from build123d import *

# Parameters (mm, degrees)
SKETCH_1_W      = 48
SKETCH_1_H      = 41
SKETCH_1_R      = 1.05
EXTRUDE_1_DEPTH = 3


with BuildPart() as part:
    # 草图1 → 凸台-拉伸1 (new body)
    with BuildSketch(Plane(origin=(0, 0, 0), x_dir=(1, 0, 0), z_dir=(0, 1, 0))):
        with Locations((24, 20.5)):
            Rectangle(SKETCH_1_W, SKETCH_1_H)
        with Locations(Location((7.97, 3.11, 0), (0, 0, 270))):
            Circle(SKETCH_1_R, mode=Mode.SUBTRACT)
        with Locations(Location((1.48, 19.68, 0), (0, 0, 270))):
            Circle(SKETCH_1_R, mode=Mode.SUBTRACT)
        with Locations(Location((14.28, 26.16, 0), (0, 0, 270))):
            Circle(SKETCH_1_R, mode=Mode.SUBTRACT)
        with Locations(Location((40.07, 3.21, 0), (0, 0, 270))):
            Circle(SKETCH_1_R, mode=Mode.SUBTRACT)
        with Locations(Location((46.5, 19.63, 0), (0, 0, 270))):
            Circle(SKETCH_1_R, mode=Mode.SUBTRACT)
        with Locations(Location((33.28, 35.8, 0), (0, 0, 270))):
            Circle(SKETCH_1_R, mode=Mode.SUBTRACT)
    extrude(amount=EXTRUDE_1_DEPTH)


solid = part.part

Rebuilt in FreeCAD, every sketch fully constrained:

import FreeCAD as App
import Part
import Sketcher

V = App.Vector
Q = App.Units.Quantity

doc = App.newDocument("Part")
body = doc.addObject("PartDesign::Body", "Body")

# Sketch on XZ plane
sketch1 = body.newObject("Sketcher::SketchObject", "Sketch")
sketch1.AttachmentSupport = (doc.getObject("XZ_Plane"), [""])
sketch1.MapMode = "FlatFace"
sketch1.addGeometry([
    Part.LineSegment(V(0, -41, 0), V(0, 0, 0)),  # 0
    Part.LineSegment(V(0, 0, 0), V(48, 0, 0)),  # 1
    Part.LineSegment(V(48, 0, 0), V(48, -41, 0)),  # 2
    Part.LineSegment(V(48, -41, 0), V(0, -41, 0)),  # 3
    Part.Circle(V(7.97, -3.11, 0), V(0, 0, 1), 1.05),  # 4
    Part.Circle(V(40.07, -3.21, 0), V(0, 0, 1), 1.05),  # 5
    Part.Circle(V(1.48, -19.68, 0), V(0, 0, 1), 1.05),  # 6
    Part.Circle(V(14.28, -26.16, 0), V(0, 0, 1), 1.05),  # 7
    Part.Circle(V(46.5, -19.63, 0), V(0, 0, 1), 1.05),  # 8
    Part.Circle(V(33.28, -35.8, 0), V(0, 0, 1), 1.05),  # 9
], False)
sketch1.addConstraint([
    Sketcher.Constraint("Coincident", 0, 2, 1, 1),
    Sketcher.Constraint("Coincident", 1, 2, 2, 1),
    Sketcher.Constraint("Coincident", 2, 2, 3, 1),
    Sketcher.Constraint("Coincident", 3, 2, 0, 1),
    Sketcher.Constraint("Vertical", 0),
    Sketcher.Constraint("Horizontal", 1),
    Sketcher.Constraint("Vertical", 2),
    Sketcher.Constraint("Horizontal", 3),
    Sketcher.Constraint("Coincident", 0, 2, -1, 1),
    Sketcher.Constraint("Equal", 4, 5),
    Sketcher.Constraint("Equal", 5, 6),
    Sketcher.Constraint("Equal", 6, 7),
    Sketcher.Constraint("Equal", 7, 8),
    Sketcher.Constraint("Equal", 8, 9),
    Sketcher.Constraint("Diameter", 4, Q("2.1 mm")),
    Sketcher.Constraint("DistanceX", 1, 1, 1, 2, Q("48 mm")),
    Sketcher.Constraint("DistanceY", 0, 1, 0, 2, Q("41 mm")),
    Sketcher.Constraint("DistanceX", 7, 3, 9, 3, Q("19 mm")),
    Sketcher.Constraint("DistanceX", -1, 1, 8, 3, Q("46.5 mm")),
    Sketcher.Constraint("DistanceY", 9, 3, -1, 1, Q("35.8 mm")),
    Sketcher.Constraint("DistanceX", 4, 3, 5, 3, Q("32.1 mm")),
    Sketcher.Constraint("DistanceY", 5, 3, 4, 3, Q("0.1 mm")),
    Sketcher.Constraint("DistanceX", 6, 3, 7, 3, Q("12.8 mm")),
    Sketcher.Constraint("DistanceX", -1, 1, 4, 3, Q("7.97 mm")),
    Sketcher.Constraint("DistanceY", 4, 3, -1, 1, Q("3.11 mm")),
    Sketcher.Constraint("DistanceX", -1, 1, 6, 3, Q("1.48 mm")),
    Sketcher.Constraint("DistanceY", 6, 3, -1, 1, Q("19.68 mm")),
    Sketcher.Constraint("DistanceY", 7, 3, -1, 1, Q("26.16 mm")),
    Sketcher.Constraint("DistanceY", 8, 3, -1, 1, Q("19.63 mm")),
])
pad1 = body.newObject("PartDesign::Pad", "Pad")
pad1.Profile = sketch1
pad1.Length = 3
pad1.Reversed = True

doc.recompute()
